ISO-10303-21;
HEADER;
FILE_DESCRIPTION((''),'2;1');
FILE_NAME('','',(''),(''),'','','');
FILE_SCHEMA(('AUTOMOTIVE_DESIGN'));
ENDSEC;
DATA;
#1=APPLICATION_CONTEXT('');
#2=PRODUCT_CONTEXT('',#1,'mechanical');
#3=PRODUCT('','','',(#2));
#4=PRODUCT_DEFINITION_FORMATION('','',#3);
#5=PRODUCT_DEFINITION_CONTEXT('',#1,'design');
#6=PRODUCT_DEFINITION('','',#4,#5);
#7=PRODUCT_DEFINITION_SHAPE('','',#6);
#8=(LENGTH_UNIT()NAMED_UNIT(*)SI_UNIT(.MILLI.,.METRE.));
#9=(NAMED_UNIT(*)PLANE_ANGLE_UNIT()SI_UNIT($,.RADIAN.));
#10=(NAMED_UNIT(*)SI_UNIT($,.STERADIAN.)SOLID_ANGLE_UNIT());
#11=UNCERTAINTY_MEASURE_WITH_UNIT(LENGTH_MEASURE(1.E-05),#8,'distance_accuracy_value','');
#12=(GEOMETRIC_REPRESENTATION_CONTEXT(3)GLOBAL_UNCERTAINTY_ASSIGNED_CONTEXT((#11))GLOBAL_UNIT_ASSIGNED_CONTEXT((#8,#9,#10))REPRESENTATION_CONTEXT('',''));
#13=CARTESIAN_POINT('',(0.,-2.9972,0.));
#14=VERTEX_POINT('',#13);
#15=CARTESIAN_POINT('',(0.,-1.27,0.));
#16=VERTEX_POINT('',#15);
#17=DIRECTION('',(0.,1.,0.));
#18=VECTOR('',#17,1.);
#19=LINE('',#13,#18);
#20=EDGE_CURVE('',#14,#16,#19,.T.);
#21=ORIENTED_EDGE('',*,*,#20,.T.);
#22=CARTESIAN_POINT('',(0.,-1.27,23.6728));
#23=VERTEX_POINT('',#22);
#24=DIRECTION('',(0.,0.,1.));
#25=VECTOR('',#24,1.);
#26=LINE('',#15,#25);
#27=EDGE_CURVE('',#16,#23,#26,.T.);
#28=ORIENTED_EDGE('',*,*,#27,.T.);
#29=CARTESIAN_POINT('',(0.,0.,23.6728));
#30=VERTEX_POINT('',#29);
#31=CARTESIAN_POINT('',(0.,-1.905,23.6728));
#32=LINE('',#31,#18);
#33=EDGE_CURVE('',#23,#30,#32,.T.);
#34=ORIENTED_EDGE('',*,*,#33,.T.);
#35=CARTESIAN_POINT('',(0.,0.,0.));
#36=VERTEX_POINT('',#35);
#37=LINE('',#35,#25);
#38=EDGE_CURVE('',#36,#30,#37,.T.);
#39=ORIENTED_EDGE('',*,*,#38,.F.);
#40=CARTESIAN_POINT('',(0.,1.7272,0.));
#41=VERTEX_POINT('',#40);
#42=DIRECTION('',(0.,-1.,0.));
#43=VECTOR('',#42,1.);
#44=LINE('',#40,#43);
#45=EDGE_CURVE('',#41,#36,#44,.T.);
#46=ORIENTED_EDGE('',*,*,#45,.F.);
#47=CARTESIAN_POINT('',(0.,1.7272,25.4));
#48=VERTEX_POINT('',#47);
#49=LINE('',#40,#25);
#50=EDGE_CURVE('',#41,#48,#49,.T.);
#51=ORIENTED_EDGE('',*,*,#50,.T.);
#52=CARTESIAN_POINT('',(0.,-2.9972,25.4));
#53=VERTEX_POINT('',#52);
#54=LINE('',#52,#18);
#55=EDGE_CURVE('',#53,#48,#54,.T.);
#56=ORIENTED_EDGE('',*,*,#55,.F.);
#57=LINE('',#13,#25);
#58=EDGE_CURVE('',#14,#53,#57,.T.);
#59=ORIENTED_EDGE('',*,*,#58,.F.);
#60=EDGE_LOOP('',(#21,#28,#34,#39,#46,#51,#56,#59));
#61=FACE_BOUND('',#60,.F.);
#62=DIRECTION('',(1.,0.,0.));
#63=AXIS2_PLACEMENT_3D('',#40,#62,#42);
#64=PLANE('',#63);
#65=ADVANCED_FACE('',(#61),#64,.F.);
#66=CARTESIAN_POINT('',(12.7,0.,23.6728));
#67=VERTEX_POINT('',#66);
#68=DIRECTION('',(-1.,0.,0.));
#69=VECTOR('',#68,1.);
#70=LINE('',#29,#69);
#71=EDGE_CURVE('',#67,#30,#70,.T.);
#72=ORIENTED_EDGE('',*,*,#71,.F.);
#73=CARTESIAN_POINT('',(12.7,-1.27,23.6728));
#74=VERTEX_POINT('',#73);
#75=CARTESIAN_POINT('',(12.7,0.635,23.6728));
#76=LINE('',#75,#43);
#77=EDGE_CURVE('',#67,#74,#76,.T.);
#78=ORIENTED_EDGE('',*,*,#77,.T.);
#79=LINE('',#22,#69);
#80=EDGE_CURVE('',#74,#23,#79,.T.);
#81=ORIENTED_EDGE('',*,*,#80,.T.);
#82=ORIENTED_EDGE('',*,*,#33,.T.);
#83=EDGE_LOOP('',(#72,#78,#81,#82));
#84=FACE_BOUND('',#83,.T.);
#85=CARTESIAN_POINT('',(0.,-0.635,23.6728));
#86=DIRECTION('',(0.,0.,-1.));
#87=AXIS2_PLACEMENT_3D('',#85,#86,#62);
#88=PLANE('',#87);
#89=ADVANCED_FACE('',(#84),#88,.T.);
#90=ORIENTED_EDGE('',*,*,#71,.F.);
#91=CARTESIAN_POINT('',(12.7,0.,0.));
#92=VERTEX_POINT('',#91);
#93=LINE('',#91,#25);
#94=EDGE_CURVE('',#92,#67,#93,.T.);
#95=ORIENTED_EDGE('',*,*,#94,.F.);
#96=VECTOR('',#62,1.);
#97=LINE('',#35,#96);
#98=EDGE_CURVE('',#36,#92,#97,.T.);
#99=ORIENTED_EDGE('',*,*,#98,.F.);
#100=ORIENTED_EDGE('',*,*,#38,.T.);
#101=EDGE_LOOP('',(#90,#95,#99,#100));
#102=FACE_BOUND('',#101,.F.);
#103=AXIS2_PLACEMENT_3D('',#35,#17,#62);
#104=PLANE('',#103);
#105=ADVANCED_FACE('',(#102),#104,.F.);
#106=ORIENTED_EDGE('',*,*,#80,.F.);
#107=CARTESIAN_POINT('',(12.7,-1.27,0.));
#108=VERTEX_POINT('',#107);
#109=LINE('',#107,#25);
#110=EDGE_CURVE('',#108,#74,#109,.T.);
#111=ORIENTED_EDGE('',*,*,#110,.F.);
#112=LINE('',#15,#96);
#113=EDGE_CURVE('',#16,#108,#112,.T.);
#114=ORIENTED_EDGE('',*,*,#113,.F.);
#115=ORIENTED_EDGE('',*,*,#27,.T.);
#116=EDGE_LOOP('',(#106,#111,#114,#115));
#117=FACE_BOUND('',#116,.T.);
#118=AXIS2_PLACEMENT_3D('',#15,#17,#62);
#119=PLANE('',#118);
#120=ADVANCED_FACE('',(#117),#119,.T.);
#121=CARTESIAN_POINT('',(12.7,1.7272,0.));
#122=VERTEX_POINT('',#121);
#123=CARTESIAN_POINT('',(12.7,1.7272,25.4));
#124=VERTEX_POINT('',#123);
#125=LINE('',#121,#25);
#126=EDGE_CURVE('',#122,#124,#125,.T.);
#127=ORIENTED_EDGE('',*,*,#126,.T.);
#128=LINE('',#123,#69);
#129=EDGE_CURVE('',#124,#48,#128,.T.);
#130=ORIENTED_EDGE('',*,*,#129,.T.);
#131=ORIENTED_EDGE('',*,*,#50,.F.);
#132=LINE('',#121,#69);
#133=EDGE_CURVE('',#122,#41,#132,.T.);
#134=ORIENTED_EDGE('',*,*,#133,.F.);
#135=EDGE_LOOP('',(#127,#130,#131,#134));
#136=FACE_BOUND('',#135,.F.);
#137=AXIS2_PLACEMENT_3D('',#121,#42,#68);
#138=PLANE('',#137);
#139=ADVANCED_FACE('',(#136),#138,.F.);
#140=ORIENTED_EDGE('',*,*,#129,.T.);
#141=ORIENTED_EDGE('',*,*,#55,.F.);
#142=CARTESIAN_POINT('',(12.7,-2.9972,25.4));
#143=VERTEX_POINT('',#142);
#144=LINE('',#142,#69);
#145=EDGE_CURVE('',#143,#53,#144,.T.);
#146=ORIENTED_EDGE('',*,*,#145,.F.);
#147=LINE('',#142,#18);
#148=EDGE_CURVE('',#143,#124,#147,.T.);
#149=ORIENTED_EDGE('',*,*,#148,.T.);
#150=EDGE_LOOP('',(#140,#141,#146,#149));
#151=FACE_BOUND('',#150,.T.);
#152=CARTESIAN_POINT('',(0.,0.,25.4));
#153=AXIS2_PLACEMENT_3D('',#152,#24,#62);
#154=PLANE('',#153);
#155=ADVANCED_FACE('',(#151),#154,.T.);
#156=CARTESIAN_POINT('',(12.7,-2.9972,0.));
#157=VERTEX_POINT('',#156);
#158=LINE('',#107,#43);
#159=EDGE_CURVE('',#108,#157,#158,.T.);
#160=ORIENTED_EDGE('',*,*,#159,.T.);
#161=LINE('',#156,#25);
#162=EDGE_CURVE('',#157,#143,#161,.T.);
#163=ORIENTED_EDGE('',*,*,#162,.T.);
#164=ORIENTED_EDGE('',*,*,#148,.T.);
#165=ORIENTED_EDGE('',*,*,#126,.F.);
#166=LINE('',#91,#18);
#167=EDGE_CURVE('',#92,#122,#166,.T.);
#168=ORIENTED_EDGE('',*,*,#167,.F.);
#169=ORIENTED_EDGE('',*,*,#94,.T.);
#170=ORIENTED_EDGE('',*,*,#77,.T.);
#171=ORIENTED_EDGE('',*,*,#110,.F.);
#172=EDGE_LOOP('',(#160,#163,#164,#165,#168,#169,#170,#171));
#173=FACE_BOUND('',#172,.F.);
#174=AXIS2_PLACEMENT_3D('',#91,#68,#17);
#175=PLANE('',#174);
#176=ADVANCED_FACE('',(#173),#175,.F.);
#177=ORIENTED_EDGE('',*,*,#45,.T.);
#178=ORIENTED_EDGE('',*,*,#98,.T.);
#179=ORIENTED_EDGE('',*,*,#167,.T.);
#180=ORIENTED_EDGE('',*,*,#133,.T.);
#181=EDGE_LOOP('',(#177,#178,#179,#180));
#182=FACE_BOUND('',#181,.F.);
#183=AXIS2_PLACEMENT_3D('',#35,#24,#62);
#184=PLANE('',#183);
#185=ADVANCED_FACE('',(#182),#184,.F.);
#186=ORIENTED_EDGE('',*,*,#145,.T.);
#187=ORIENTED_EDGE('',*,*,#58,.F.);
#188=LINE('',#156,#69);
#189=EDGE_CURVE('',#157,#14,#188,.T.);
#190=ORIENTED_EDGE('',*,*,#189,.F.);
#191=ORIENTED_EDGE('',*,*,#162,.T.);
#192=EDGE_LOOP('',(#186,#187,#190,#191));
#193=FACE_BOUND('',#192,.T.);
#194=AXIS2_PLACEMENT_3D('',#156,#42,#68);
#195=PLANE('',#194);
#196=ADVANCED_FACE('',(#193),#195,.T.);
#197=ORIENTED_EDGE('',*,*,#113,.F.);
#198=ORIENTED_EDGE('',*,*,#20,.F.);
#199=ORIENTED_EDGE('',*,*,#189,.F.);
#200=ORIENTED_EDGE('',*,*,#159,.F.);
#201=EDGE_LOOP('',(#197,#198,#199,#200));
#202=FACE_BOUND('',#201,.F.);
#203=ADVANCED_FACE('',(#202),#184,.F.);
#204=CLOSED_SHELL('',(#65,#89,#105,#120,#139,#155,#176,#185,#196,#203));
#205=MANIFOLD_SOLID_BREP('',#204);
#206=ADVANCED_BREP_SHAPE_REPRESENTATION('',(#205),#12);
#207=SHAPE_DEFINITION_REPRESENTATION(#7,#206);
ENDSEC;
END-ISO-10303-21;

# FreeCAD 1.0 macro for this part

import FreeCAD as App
import Part
import Sketcher
from FreeCAD import Vector
Q = App.Units.Quantity

doc = App.newDocument("Part")
body = doc.addObject("PartDesign::Body", "Body")
body.AllowCompound = True

# Sketch on XY plane
sketch1 = body.newObject("Sketcher::SketchObject", "Sketch")
sketch1.AttachmentSupport = (doc.getObject("XY_Plane"), [""])
sketch1.MapMode = "FlatFace"
sketch1.addGeometry(Part.LineSegment(Vector(0, 1.7272, 0), Vector(0, 0, 0)), False)
sketch1.addGeometry(Part.LineSegment(Vector(0, 0, 0), Vector(12.7, 0, 0)), False)
sketch1.addGeometry(Part.LineSegment(Vector(12.7, 0, 0), Vector(12.7, 1.7272, 0)), False)
sketch1.addGeometry(Part.LineSegment(Vector(12.7, 1.7272, 0), Vector(0, 1.7272, 0)), False)
sketch1.addGeometry(Part.LineSegment(Vector(12.7, -1.27, 0), Vector(0, -1.27, 0)), False)
sketch1.addGeometry(Part.LineSegment(Vector(0, -1.27, 0), Vector(0, -2.9972, 0)), False)
sketch1.addGeometry(Part.LineSegment(Vector(0, -2.9972, 0), Vector(12.7, -2.9972, 0)), False)
sketch1.addGeometry(Part.LineSegment(Vector(12.7, -2.9972, 0), Vector(12.7, -1.27, 0)), False)
sketch1.addConstraint(Sketcher.Constraint("Coincident", 0, 2, 1, 1))
sketch1.addConstraint(Sketcher.Constraint("Coincident", 1, 2, 2, 1))
sketch1.addConstraint(Sketcher.Constraint("Coincident", 2, 2, 3, 1))
sketch1.addConstraint(Sketcher.Constraint("Coincident", 3, 2, 0, 1))
sketch1.addConstraint(Sketcher.Constraint("Coincident", 4, 2, 5, 1))
sketch1.addConstraint(Sketcher.Constraint("Coincident", 5, 2, 6, 1))
sketch1.addConstraint(Sketcher.Constraint("Coincident", 6, 2, 7, 1))
sketch1.addConstraint(Sketcher.Constraint("Coincident", 7, 2, 4, 1))
sketch1.addConstraint(Sketcher.Constraint("Vertical", 0))
sketch1.addConstraint(Sketcher.Constraint("Horizontal", 1))
sketch1.addConstraint(Sketcher.Constraint("Vertical", 2))
sketch1.addConstraint(Sketcher.Constraint("Horizontal", 3))
sketch1.addConstraint(Sketcher.Constraint("Horizontal", 4))
sketch1.addConstraint(Sketcher.Constraint("Vertical", 5))
sketch1.addConstraint(Sketcher.Constraint("Horizontal", 6))
sketch1.addConstraint(Sketcher.Constraint("Vertical", 7))
sketch1.addConstraint(Sketcher.Constraint("Coincident", 0, 2, -1, 1))
sketch1.addConstraint(Sketcher.Constraint("PointOnObject", 4, 2, -2))
sketch1.addConstraint(Sketcher.Constraint("Vertical", 2, 2, 6, 2))
sketch1.addConstraint(Sketcher.Constraint("Equal", 2, 5))
sketch1.addConstraint(Sketcher.Constraint("DistanceX", 1, 1, 1, 2, Q("0.5 in")))
sketch1.addConstraint(Sketcher.Constraint("DistanceY", 0, 2, 0, 1, Q("0.068 in")))
sketch1.addConstraint(Sketcher.Constraint("DistanceY", 4, 2, -1, 1, Q("0.05 in")))
pad1 = body.newObject("PartDesign::Pad", "Pad")
pad1.Profile = sketch1
pad1.Length = Q("1 in")

# Sketch on XZ plane
sketch2 = body.newObject("Sketcher::SketchObject", "Sketch001")
sketch2.AttachmentSupport = (doc.getObject("XZ_Plane"), [""])
sketch2.MapMode = "FlatFace"
sketch2.AttachmentOffset = App.Placement(Vector(0, 0, 0.025 * 25.4), App.Rotation())
sketch2.addGeometry(Part.LineSegment(Vector(12.7, 23.6728, 0), Vector(0, 23.6728, 0)), False)
sketch2.addGeometry(Part.LineSegment(Vector(0, 23.6728, 0), Vector(0, 25.4, 0)), False)
sketch2.addGeometry(Part.LineSegment(Vector(0, 25.4, 0), Vector(12.7, 25.4, 0)), False)
sketch2.addGeometry(Part.LineSegment(Vector(12.7, 25.4, 0), Vector(12.7, 23.6728, 0)), False)
sketch2.addConstraint(Sketcher.Constraint("Coincident", 0, 2, 1, 1))
sketch2.addConstraint(Sketcher.Constraint("Coincident", 1, 2, 2, 1))
sketch2.addConstraint(Sketcher.Constraint("Coincident", 2, 2, 3, 1))
sketch2.addConstraint(Sketcher.Constraint("Coincident", 3, 2, 0, 1))
sketch2.addConstraint(Sketcher.Constraint("Horizontal", 0))
sketch2.addConstraint(Sketcher.Constraint("Vertical", 1))
sketch2.addConstraint(Sketcher.Constraint("Horizontal", 2))
sketch2.addConstraint(Sketcher.Constraint("Vertical", 3))
sketch2.addConstraint(Sketcher.Constraint("PointOnObject", 0, 2, -2))
sketch2.addConstraint(Sketcher.Constraint("DistanceX", 0, 2, 0, 1, Q("0.5 in")))
sketch2.addConstraint(Sketcher.Constraint("DistanceY", -1, 1, 1, 2, Q("1 in")))
sketch2.addConstraint(Sketcher.Constraint("DistanceY", 1, 1, 1, 2, Q("0.068 in")))
pad2 = body.newObject("PartDesign::Pad", "Pad001")
pad2.Profile = sketch2
pad2.Type = "TwoLengths"
pad2.Length = Q("0.05 in")
pad2.Length2 = Q("0.05 in")
pad2.Reversed = True

doc.recompute()
